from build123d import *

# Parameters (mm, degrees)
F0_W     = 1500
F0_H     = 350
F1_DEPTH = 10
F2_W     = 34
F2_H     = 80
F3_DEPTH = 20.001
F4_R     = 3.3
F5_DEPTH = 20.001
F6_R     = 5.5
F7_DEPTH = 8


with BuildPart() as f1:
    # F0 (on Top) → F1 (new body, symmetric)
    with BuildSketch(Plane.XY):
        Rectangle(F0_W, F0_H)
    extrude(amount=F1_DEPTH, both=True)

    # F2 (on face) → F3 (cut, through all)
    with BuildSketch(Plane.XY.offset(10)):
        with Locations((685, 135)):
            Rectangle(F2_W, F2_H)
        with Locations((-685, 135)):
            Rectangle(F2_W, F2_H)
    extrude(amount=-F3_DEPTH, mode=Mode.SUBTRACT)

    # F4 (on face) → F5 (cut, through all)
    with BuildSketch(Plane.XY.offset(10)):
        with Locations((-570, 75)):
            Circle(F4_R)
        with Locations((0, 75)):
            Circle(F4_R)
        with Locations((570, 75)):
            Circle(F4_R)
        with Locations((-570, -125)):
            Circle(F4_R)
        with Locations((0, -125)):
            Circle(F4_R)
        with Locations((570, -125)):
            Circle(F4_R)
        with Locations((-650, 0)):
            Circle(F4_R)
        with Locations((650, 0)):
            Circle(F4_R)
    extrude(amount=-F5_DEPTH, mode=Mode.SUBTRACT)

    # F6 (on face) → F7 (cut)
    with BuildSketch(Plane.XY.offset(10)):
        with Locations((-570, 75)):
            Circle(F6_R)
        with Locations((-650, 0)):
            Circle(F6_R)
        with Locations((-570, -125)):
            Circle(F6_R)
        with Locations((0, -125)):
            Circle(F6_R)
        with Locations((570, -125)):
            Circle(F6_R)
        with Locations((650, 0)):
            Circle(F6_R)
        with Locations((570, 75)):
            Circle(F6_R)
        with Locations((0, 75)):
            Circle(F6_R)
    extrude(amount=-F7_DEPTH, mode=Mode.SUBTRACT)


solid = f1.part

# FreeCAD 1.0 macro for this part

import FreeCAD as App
import Part
import Sketcher
from FreeCAD import Vector
Q = App.Units.Quantity


def add_polygon(sketch, points):
    """Adds a closed chain of lines whose ends are joined by coincident constraints."""
    first, n = sketch.GeometryCount, len(points)
    for a, b in zip(points, points[1:] + points[:1]):
        sketch.addGeometry(Part.LineSegment(App.Vector(*a, 0), App.Vector(*b, 0)), False)
    for i in range(n):
        sketch.addConstraint(Sketcher.Constraint("Coincident", first + i, 2, first + (i + 1) % n, 1))

doc = App.newDocument("Part")
body = doc.addObject("PartDesign::Body", "Body")

# Sketch on XY plane
sketch1 = body.newObject("Sketcher::SketchObject", "Sketch")
sketch1.AttachmentSupport = (doc.getObject("XY_Plane"), [""])
sketch1.MapMode = "FlatFace"
add_polygon(sketch1, [(-750, 175), (-750, -175), (750, -175), (750, 175)])  # lines 0-3
sketch1.addConstraint([
    Sketcher.Constraint("Vertical", 0),
    Sketcher.Constraint("Horizontal", 1),
    Sketcher.Constraint("Vertical", 2),
    Sketcher.Constraint("Horizontal", 3),
    Sketcher.Constraint("Symmetric", 0, 2, 2, 2, -1, 1),
    Sketcher.Constraint("DistanceX", 1, 1, 1, 2, Q("1500 mm")),
    Sketcher.Constraint("DistanceY", 0, 2, 0, 1, Q("350 mm")),
])
pad1 = body.newObject("PartDesign::Pad", "Pad")
pad1.Profile = sketch1
pad1.Length = 20
pad1.Midplane = True

# Sketch on XY plane
sketch2 = body.newObject("Sketcher::SketchObject", "Sketch001")
sketch2.AttachmentSupport = (doc.getObject("XY_Plane"), [""])
sketch2.MapMode = "FlatFace"
sketch2.AttachmentOffset = App.Placement(Vector(0, 0, 10), App.Rotation())
add_polygon(sketch2, [(668, 175), (668, 95), (702, 95), (702, 175)])  # lines 0-3
add_polygon(sketch2, [(-702, 175), (-702, 95), (-668, 95), (-668, 175)])  # lines 4-7
sketch2.addConstraint([
    Sketcher.Constraint("Vertical", 0),
    Sketcher.Constraint("Horizontal", 1),
    Sketcher.Constraint("Vertical", 2),
    Sketcher.Constraint("Horizontal", 3),
    Sketcher.Constraint("Vertical", 4),
    Sketcher.Constraint("Horizontal", 5),
    Sketcher.Constraint("Vertical", 6),
    Sketcher.Constraint("Horizontal", 7),
    Sketcher.Constraint("Symmetric", 1, 2, 4, 2, -2),
    Sketcher.Constraint("Symmetric", 3, 2, 6, 2, -2),
    Sketcher.Constraint("DistanceX", 1, 1, 1, 2, Q("34 mm")),
    Sketcher.Constraint("DistanceY", 0, 2, 0, 1, Q("80 mm")),
    Sketcher.Constraint("DistanceX", -1, 1, 0, 2, Q("668 mm")),
    Sketcher.Constraint("DistanceY", -1, 1, 0, 2, Q("95 mm")),
])
pocket1 = body.newObject("PartDesign::Pocket", "Pocket")
pocket1.Profile = sketch2
pocket1.Type = "ThroughAll"

# Sketch on XY plane
sketch3 = body.newObject("Sketcher::SketchObject", "Sketch002")
sketch3.AttachmentSupport = (doc.getObject("XY_Plane"), [""])
sketch3.MapMode = "FlatFace"
sketch3.AttachmentOffset = App.Placement(Vector(0, 0, 10), App.Rotation())
sketch3.addGeometry([
    Part.Circle(Vector(-570, 75, 0), Vector(0, 0, 1), 3.3),  # 0
    Part.Circle(Vector(0, 75, 0), Vector(0, 0, 1), 3.3),  # 1
    Part.Circle(Vector(570, 75, 0), Vector(0, 0, 1), 3.3),  # 2
    Part.Circle(Vector(-570, -125, 0), Vector(0, 0, 1), 3.3),  # 3
    Part.Circle(Vector(0, -125, 0), Vector(0, 0, 1), 3.3),  # 4
    Part.Circle(Vector(570, -125, 0), Vector(0, 0, 1), 3.3),  # 5
    Part.Circle(Vector(-650, 0, 0), Vector(0, 0, 1), 3.3),  # 6
    Part.Circle(Vector(650, 0, 0), Vector(0, 0, 1), 3.3),  # 7
], False)
sketch3.addConstraint([
    Sketcher.Constraint("Equal", 0, 1),
    Sketcher.Constraint("Equal", 1, 2),
    Sketcher.Constraint("Equal", 2, 3),
    Sketcher.Constraint("Equal", 3, 4),
    Sketcher.Constraint("Equal", 4, 5),
    Sketcher.Constraint("Equal", 5, 6),
    Sketcher.Constraint("Equal", 6, 7),
    Sketcher.Constraint("Symmetric", 6, 3, 7, 3, -1, 1),
    Sketcher.Constraint("Symmetric", 0, 3, 2, 3, -2),
    Sketcher.Constraint("Symmetric", 3, 3, 5, 3, -2),
    Sketcher.Constraint("PointOnObject", 1, 3, -2),
    Sketcher.Constraint("PointOnObject", 4, 3, -2),
    Sketcher.Constraint("PointOnObject", 6, 3, -1),
    Sketcher.Constraint("Horizontal", 0, 3, 1, 3),
    Sketcher.Constraint("Horizontal", 3, 3, 4, 3),
    Sketcher.Constraint("Vertical", 0, 3, 3, 3),
    Sketcher.Constraint("Diameter", 0, Q("6.6 mm")),
    Sketcher.Constraint("DistanceX", 0, 3, -1, 1, Q("570 mm")),
    Sketcher.Constraint("DistanceY", -1, 1, 0, 3, Q("75 mm")),
    Sketcher.Constraint("DistanceY", 3, 3, -1, 1, Q("125 mm")),
    Sketcher.Constraint("DistanceX", 6, 3, -1, 1, Q("650 mm")),
])
pocket2 = body.newObject("PartDesign::Pocket", "Pocket001")
pocket2.Profile = sketch3
pocket2.Type = "ThroughAll"

# Sketch on XY plane
sketch4 = body.newObject("Sketcher::SketchObject", "Sketch003")
sketch4.AttachmentSupport = (doc.getObject("XY_Plane"), [""])
sketch4.MapMode = "FlatFace"
sketch4.AttachmentOffset = App.Placement(Vector(0, 0, 10), App.Rotation())
sketch4.addGeometry([
    Part.Circle(Vector(-570, 75, 0), Vector(0, 0, 1), 5.5),  # 0
    Part.Circle(Vector(-650, 0, 0), Vector(0, 0, 1), 5.5),  # 1
    Part.Circle(Vector(-570, -125, 0), Vector(0, 0, 1), 5.5),  # 2
    Part.Circle(Vector(0, -125, 0), Vector(0, 0, 1), 5.5),  # 3
    Part.Circle(Vector(570, -125, 0), Vector(0, 0, 1), 5.5),  # 4
    Part.Circle(Vector(650, 0, 0), Vector(0, 0, 1), 5.5),  # 5
    Part.Circle(Vector(570, 75, 0), Vector(0, 0, 1), 5.5),  # 6
    Part.Circle(Vector(0, 75, 0), Vector(0, 0, 1), 5.5),  # 7
], False)
sketch4.addConstraint([
    Sketcher.Constraint("Equal", 0, 1),
    Sketcher.Constraint("Equal", 1, 2),
    Sketcher.Constraint("Equal", 2, 3),
    Sketcher.Constraint("Equal", 3, 4),
    Sketcher.Constraint("Equal", 4, 5),
    Sketcher.Constraint("Equal", 5, 6),
    Sketcher.Constraint("Equal", 6, 7),
    Sketcher.Constraint("Symmetric", 1, 3, 5, 3, -1, 1),
    Sketcher.Constraint("Symmetric", 2, 3, 4, 3, -2),
    Sketcher.Constraint("Symmetric", 0, 3, 6, 3, -2),
    Sketcher.Constraint("PointOnObject", 1, 3, -1),
    Sketcher.Constraint("PointOnObject", 3, 3, -2),
    Sketcher.Constraint("PointOnObject", 7, 3, -2),
    Sketcher.Constraint("Horizontal", 2, 3, 3, 3),
    Sketcher.Constraint("Horizontal", 6, 3, 7, 3),
    Sketcher.Constraint("Vertical", 0, 3, 2, 3),
    Sketcher.Constraint("Diameter", 0, Q("11 mm")),
    Sketcher.Constraint("DistanceX", 0, 3, -1, 1, Q("570 mm")),
    Sketcher.Constraint("DistanceY", -1, 1, 0, 3, Q("75 mm")),
    Sketcher.Constraint("DistanceX", 1, 3, -1, 1, Q("650 mm")),
    Sketcher.Constraint("DistanceY", 2, 3, -1, 1, Q("125 mm")),
])
pocket3 = body.newObject("PartDesign::Pocket", "Pocket002")
pocket3.Profile = sketch4
pocket3.Length = 8

doc.recompute()
